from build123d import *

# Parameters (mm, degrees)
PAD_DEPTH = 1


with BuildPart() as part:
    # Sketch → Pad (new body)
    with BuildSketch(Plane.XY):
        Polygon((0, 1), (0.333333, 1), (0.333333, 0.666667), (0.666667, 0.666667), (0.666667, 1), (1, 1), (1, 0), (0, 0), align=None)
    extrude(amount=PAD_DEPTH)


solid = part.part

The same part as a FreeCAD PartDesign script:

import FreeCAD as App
import Part
import Sketcher
from FreeCAD import Vector
Q = App.Units.Quantity


def add_polygon(sketch, points):
    """Adds a closed chain of lines whose ends are joined by coincident constraints."""
    first, n = sketch.GeometryCount, len(points)
    for a, b in zip(points, points[1:] + points[:1]):
        sketch.addGeometry(Part.LineSegment(App.Vector(*a, 0), App.Vector(*b, 0)), False)
    for i in range(n):
        sketch.addConstraint(Sketcher.Constraint("Coincident", first + i, 2, first + (i + 1) % n, 1))

doc = App.newDocument("Part")
body = doc.addObject("PartDesign::Body", "Body")

# Sketch on XY plane
sketch1 = body.newObject("Sketcher::SketchObject", "Sketch")
sketch1.AttachmentSupport = (doc.getObject("XY_Plane"), [""])
sketch1.MapMode = "FlatFace"
add_polygon(sketch1, [(0.333333, 1), (0, 1), (0, 0), (1, 0), (1, 1), (0.666667, 1), (0.666667, 0.666667), (0.333333, 0.666667)])  # lines 0-7
sketch1.addConstraint([
    Sketcher.Constraint("Horizontal", 0),
    Sketcher.Constraint("Vertical", 1),
    Sketcher.Constraint("Horizontal", 2),
    Sketcher.Constraint("Vertical", 3),
    Sketcher.Constraint("Horizontal", 4),
    Sketcher.Constraint("Vertical", 5),
    Sketcher.Constraint("Horizontal", 6),
    Sketcher.Constraint("Vertical", 7),
    Sketcher.Constraint("Coincident", 1, 2, -1, 1),
    Sketcher.Constraint("Horizontal", 0, 2, 3, 2),
    Sketcher.Constraint("Equal", 0, 4),
    Sketcher.Constraint("Equal", 4, 6),
    Sketcher.Constraint("Equal", 2, 1),
    Sketcher.Constraint("Equal", 6, 5),
    Sketcher.Constraint("DistanceX", 2, 1, 2, 2, Q("1 mm")),
])
pad1 = body.newObject("PartDesign::Pad", "Pad")
pad1.Profile = sketch1
pad1.Length = 1

doc.recompute()
